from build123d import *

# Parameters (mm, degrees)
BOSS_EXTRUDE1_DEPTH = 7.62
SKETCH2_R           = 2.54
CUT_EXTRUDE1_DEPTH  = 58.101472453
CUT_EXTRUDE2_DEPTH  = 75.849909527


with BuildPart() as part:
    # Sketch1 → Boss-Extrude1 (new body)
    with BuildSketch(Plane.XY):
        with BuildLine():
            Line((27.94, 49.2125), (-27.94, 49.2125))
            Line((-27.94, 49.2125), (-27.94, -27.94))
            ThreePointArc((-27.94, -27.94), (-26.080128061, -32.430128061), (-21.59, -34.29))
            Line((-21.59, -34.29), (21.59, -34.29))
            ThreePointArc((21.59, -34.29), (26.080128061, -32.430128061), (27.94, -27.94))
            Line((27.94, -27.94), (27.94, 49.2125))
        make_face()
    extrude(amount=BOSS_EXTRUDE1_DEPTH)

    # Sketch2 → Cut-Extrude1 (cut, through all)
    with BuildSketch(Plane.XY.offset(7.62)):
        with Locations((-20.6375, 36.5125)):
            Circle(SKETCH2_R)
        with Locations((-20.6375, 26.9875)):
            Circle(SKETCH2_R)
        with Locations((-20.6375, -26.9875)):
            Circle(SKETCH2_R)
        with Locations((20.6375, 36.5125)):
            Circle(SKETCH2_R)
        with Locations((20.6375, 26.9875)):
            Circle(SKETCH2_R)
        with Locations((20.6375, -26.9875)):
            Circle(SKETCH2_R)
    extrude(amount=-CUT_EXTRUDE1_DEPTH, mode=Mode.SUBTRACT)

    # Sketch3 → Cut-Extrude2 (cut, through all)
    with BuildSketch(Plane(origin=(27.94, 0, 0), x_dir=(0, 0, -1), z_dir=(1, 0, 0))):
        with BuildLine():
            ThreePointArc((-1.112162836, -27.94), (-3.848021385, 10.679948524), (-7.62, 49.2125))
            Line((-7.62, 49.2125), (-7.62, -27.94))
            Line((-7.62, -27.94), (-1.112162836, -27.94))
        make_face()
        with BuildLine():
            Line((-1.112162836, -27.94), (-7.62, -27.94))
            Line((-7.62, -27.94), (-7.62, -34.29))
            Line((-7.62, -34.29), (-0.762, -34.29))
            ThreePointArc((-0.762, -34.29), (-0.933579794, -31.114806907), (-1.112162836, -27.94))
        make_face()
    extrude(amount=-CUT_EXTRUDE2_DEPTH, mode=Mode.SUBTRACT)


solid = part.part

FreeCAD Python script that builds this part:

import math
import FreeCAD as App
import Part
import Sketcher
Q = App.Units.Quantity

doc = App.newDocument("Part")
body = doc.addObject("PartDesign::Body", "Body")

sketch1 = doc.addObject("Sketcher::SketchObject", "Sketch")
body.addObject(sketch1)
sketch1.AttachmentSupport = (doc.XY_Plane, [""])
sketch1.MapMode = "FlatFace"
sketch1.addGeometry(Part.LineSegment(App.Vector(27.94, 49.2125, 0), App.Vector(-27.94, 49.2125, 0)), False)
sketch1.addGeometry(Part.LineSegment(App.Vector(-27.94, 49.2125, 0), App.Vector(-27.94, -27.94, 0)), False)
sketch1.addGeometry(Part.ArcOfCircle(Part.Circle(App.Vector(-21.59, -27.94, 0), App.Vector(0, 0, 1), 6.35), math.radians(180), math.radians(270)), False)
sketch1.addGeometry(Part.LineSegment(App.Vector(-21.59, -34.29, 0), App.Vector(21.59, -34.29, 0)), False)
sketch1.addGeometry(Part.ArcOfCircle(Part.Circle(App.Vector(21.59, -27.94, 0), App.Vector(0, 0, 1), 6.35), math.radians(-90), math.radians(0)), False)
sketch1.addGeometry(Part.LineSegment(App.Vector(27.94, -27.94, 0), App.Vector(27.94, 49.2125, 0)), False)
sketch1.addConstraint(Sketcher.Constraint("Coincident", 0, 2, 1, 1))
sketch1.addConstraint(Sketcher.Constraint("Tangent", 1, 2, 2, 1))
sketch1.addConstraint(Sketcher.Constraint("Tangent", 2, 2, 3, 1))
sketch1.addConstraint(Sketcher.Constraint("Tangent", 3, 2, 4, 1))
sketch1.addConstraint(Sketcher.Constraint("Tangent", 4, 2, 5, 1))
sketch1.addConstraint(Sketcher.Constraint("Coincident", 5, 2, 0, 1))
sketch1.addConstraint(Sketcher.Constraint("Horizontal", 0))
sketch1.addConstraint(Sketcher.Constraint("Vertical", 1))
sketch1.addConstraint(Sketcher.Constraint("Horizontal", 3))
sketch1.addConstraint(Sketcher.Constraint("Vertical", 5))
sketch1.addConstraint(Sketcher.Constraint("Equal", 2, 4))
sketch1.addConstraint(Sketcher.Constraint("Radius", 2, Q("0.25 in")))
sketch1.addConstraint(Sketcher.Constraint("DistanceX", 0, 2, 0, 1, Q("2.2 in")))
sketch1.addConstraint(Sketcher.Constraint("DistanceY", 2, 3, -1, 1, Q("1.1 in")))
sketch1.addConstraint(Sketcher.Constraint("DistanceX", 0, 2, -1, 1, Q("1.1 in")))
sketch1.addConstraint(Sketcher.Constraint("DistanceY", 1, 2, 1, 1, Q("3.0375 in")))
pad1 = doc.addObject("PartDesign::Pad", "Pad")
body.addObject(pad1)
pad1.Profile = sketch1
pad1.Length = Q("0.3 in")

sketch2 = doc.addObject("Sketcher::SketchObject", "Sketch001")
body.addObject(sketch2)
sketch2.AttachmentSupport = (doc.XY_Plane, [""])
sketch2.MapMode = "FlatFace"
sketch2.AttachmentOffset = App.Placement(App.Vector(0, 0, 0.3 * 25.4), App.Rotation())
sketch2.addGeometry(Part.Circle(App.Vector(-20.6375, 36.5125, 0), App.Vector(0, 0, 1), 2.54), False)
sketch2.addGeometry(Part.Circle(App.Vector(-20.6375, 26.9875, 0), App.Vector(0, 0, 1), 2.54), False)
sketch2.addGeometry(Part.Circle(App.Vector(-20.6375, -26.9875, 0), App.Vector(0, 0, 1), 2.54), False)
sketch2.addGeometry(Part.Circle(App.Vector(20.6375, 36.5125, 0), App.Vector(0, 0, 1), 2.54), False)
sketch2.addGeometry(Part.Circle(App.Vector(20.6375, 26.9875, 0), App.Vector(0, 0, 1), 2.54), False)
sketch2.addGeometry(Part.Circle(App.Vector(20.6375, -26.9875, 0), App.Vector(0, 0, 1), 2.54), False)
sketch2.addConstraint(Sketcher.Constraint("Equal", 0, 1))
sketch2.addConstraint(Sketcher.Constraint("Equal", 1, 2))
sketch2.addConstraint(Sketcher.Constraint("Equal", 2, 3))
sketch2.addConstraint(Sketcher.Constraint("Equal", 3, 4))
sketch2.addConstraint(Sketcher.Constraint("Equal", 4, 5))
sketch2.addConstraint(Sketcher.Constraint("Symmetric", 2, 3, 4, 3, -1, 1))
sketch2.addConstraint(Sketcher.Constraint("Symmetric", 1, 3, 5, 3, -1, 1))
sketch2.addConstraint(Sketcher.Constraint("Symmetric", 0, 3, 3, 3, -2))
sketch2.addConstraint(Sketcher.Constraint("Symmetric", 1, 3, 4, 3, -2))
sketch2.addConstraint(Sketcher.Constraint("Vertical", 0, 3, 1, 3))
sketch2.addConstraint(Sketcher.Constraint("Diameter", 0, Q("0.2 in")))
sketch2.addConstraint(Sketcher.Constraint("DistanceY", 2, 3, 0, 3, Q("2.5 in")))
sketch2.addConstraint(Sketcher.Constraint("DistanceX", 0, 3, -1, 1, Q("0.8125 in")))
sketch2.addConstraint(Sketcher.Constraint("DistanceY", -1, 1, 0, 3, Q("1.4375 in")))
pocket1 = doc.addObject("PartDesign::Pocket", "Pocket")
body.addObject(pocket1)
pocket1.Profile = sketch2
pocket1.Type = "ThroughAll"

sketch3 = doc.addObject("Sketcher::SketchObject", "Sketch002")
body.addObject(sketch3)
sketch3.AttachmentSupport = (doc.YZ_Plane, [""])
sketch3.MapMode = "FlatFace"
sketch3.AttachmentOffset = App.Placement(App.Vector(0, 0, 1.1 * 25.4), App.Rotation())
sketch3.addGeometry(Part.ArcOfCircle(Part.Circle(App.Vector(-110.49, 1440.356684, 0), App.Vector(0, 0, 1), 1441.609966), math.radians(-86.717312), math.radians(-83.639681)), False)
sketch3.addGeometry(Part.LineSegment(App.Vector(49.2125, 7.62, 0), App.Vector(-34.29, 7.62, 0)), False)
sketch3.addGeometry(Part.LineSegment(App.Vector(-34.29, 7.62, 0), App.Vector(-34.29, 0.762, 0)), False)
sketch3.addGeometry(Part.ArcOfCircle(Part.Circle(App.Vector(-110.490002, 1440.356718, 0), App.Vector(0, 0, 1), 1441.61), math.radians(-86.970072), math.radians(-86.717312)), False)
sketch3.addConstraint(Sketcher.Constraint("Coincident", 0, 2, 1, 1))
sketch3.addConstraint(Sketcher.Constraint("Coincident", 1, 2, 2, 1))
sketch3.addConstraint(Sketcher.Constraint("Coincident", 2, 2, 3, 1))
sketch3.addConstraint(Sketcher.Constraint("Coincident", 3, 2, 0, 1))
sketch3.addConstraint(Sketcher.Constraint("Horizontal", 1))
sketch3.addConstraint(Sketcher.Constraint("Vertical", 2))
sketch3.addConstraint(Sketcher.Constraint("Vertical", 0, 3, 3, 3))
sketch3.addConstraint(Sketcher.Constraint("DistanceX", 0, 3, 1, 2, Q("3 in")))
sketch3.addConstraint(Sketcher.Constraint("DistanceY", 2, 2, 2, 1, Q("0.27 in")))
sketch3.addConstraint(Sketcher.Constraint("DistanceY", -1, 1, 0, 2, Q("0.3 in")))
sketch3.addConstraint(Sketcher.Constraint("DistanceX", 3, 2, -1, 1, Q("1.1 in")))
sketch3.addConstraint(Sketcher.Constraint("DistanceX", 0, 3, -1, 1, Q("4.35 in")))
sketch3.addConstraint(Sketcher.Constraint("Radius", 3, Q("1441.61 mm")))
sketch3.addConstraint(Sketcher.Constraint("DistanceX", 1, 2, 1, 1, Q("3.2875 in")))
pocket2 = doc.addObject("PartDesign::Pocket", "Pocket001")
body.addObject(pocket2)
pocket2.Profile = sketch3
pocket2.Type = "ThroughAll"

doc.recompute()
